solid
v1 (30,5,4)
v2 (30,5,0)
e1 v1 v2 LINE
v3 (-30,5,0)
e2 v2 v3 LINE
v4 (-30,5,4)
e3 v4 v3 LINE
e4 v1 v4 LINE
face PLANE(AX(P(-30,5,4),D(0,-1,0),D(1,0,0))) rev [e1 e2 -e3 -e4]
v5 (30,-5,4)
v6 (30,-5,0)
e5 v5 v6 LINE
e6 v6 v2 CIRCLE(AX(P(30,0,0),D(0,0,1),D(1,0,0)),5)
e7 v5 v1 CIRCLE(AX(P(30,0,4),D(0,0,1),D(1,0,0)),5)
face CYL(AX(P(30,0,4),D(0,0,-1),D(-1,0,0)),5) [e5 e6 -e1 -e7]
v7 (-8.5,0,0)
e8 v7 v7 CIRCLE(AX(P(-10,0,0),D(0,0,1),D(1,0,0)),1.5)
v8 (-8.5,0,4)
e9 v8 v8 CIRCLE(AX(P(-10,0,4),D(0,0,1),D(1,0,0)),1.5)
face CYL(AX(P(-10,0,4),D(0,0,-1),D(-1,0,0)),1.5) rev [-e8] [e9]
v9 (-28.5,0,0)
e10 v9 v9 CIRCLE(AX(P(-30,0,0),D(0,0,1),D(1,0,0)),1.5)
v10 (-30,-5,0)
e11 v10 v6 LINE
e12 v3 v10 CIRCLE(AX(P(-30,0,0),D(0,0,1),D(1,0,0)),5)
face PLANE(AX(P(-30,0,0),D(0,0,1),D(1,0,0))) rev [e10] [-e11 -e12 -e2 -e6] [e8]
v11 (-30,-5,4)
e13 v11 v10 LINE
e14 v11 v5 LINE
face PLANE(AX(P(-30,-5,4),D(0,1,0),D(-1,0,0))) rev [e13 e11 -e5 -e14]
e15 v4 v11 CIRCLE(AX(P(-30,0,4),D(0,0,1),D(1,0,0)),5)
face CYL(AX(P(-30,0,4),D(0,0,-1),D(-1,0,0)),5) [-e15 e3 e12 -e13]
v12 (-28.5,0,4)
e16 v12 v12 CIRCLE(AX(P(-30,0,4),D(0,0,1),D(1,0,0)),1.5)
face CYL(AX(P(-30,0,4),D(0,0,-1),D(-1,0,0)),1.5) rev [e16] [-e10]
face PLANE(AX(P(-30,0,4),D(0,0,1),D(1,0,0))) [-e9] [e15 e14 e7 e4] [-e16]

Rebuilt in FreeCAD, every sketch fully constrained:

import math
import FreeCAD as App
import Part
import Sketcher
Q = App.Units.Quantity

doc = App.newDocument("Part")
body = doc.addObject("PartDesign::Body", "Body")

sketch1 = body.newObject("Sketcher::SketchObject", "Sketch")
sketch1.AttachmentSupport = (doc.getObject("XY_Plane"), [""])
sketch1.MapMode = "FlatFace"
sketch1.addGeometry([
    Part.LineSegment(App.Vector(30, 5, 0), App.Vector(-30, 5, 0)),
    Part.ArcOfCircle(Part.Circle(App.Vector(-30, 0, 0), App.Vector(0, 0, 1), 5), math.radians(90), math.radians(270)),
    Part.LineSegment(App.Vector(-30, -5, 0), App.Vector(30, -5, 0)),
    Part.ArcOfCircle(Part.Circle(App.Vector(30, 0, 0), App.Vector(0, 0, 1), 5), math.radians(-90), math.radians(90)),
    Part.Circle(App.Vector(-10, 0, 0), App.Vector(0, 0, 1), 1.5),
    Part.Circle(App.Vector(-30, 0, 0), App.Vector(0, 0, 1), 1.5),
], False)
sketch1.addConstraint([
    Sketcher.Constraint("Tangent", 0, 2, 1, 1),
    Sketcher.Constraint("Tangent", 1, 2, 2, 1),
    Sketcher.Constraint("Tangent", 2, 2, 3, 1),
    Sketcher.Constraint("Tangent", 3, 2, 0, 1),
    Sketcher.Constraint("Horizontal", 0),
    Sketcher.Constraint("Horizontal", 2),
    Sketcher.Constraint("Coincident", 5, 3, 1, 3),
    Sketcher.Constraint("Equal", 4, 5),
    Sketcher.Constraint("Symmetric", 1, 3, 3, 3, -1, 1),
    Sketcher.Constraint("PointOnObject", 4, 3, -1),
    Sketcher.Constraint("Diameter", 4, Q("3 mm")),
    Sketcher.Constraint("Radius", 1, Q("5 mm")),
    Sketcher.Constraint("DistanceX", 0, 2, 0, 1, Q("60 mm")),
    Sketcher.Constraint("DistanceX", 4, 3, -1, 1, Q("10 mm")),
])
pad1 = body.newObject("PartDesign::Pad", "Pad")
pad1.Profile = sketch1
pad1.Length = 4

doc.recompute()
